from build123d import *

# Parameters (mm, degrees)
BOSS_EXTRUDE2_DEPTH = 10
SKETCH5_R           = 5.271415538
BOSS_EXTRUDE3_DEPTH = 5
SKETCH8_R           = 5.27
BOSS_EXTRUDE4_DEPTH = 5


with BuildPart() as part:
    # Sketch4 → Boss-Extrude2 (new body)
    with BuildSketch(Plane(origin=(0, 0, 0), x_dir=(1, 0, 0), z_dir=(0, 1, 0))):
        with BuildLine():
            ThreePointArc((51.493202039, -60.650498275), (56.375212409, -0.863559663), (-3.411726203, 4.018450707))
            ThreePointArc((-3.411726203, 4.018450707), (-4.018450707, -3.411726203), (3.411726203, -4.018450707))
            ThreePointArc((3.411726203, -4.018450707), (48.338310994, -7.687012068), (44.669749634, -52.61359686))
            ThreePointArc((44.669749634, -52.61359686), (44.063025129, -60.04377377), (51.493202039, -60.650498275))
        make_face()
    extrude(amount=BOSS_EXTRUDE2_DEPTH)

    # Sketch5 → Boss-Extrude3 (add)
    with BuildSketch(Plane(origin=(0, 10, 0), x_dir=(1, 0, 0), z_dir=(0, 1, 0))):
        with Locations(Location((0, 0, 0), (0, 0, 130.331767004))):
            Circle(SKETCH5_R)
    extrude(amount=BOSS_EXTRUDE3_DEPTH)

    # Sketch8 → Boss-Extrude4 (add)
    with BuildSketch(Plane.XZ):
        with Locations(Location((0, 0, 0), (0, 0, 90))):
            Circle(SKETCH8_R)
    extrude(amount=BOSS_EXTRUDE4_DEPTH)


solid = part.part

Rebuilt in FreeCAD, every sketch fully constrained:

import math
import FreeCAD as App
import Part
import Sketcher

doc = App.newDocument("Part")
body = doc.addObject("PartDesign::Body", "Body")

sketch1 = body.newObject("Sketcher::SketchObject", "Sketch")
sketch1.AttachmentSupport = (doc.getObject("XZ_Plane"), [""])
sketch1.MapMode = "FlatFace"
sketch1.addGeometry(Part.ArcOfCircle(Part.Circle(App.Vector(24.040738, 28.316024, 0), App.Vector(0, 0, 1), 42.416459), math.radians(-130.331767), math.radians(49.668233)), False)
sketch1.addGeometry(Part.ArcOfCircle(Part.Circle(App.Vector(0, 0, 0), App.Vector(0, 0, 1), 5.271416), math.radians(49.668233), math.radians(229.668233)), False)
sketch1.addGeometry(Part.ArcOfCircle(Part.Circle(App.Vector(24.040738, 28.316024, 0), App.Vector(0, 0, 1), 31.873628), math.radians(-130.331767), math.radians(49.668233)), False)
sketch1.addGeometry(Part.ArcOfCircle(Part.Circle(App.Vector(48.081476, 56.632048, 0), App.Vector(0, 0, 1), 5.271416), math.radians(49.668233), math.radians(229.668233)), False)
sketch1.addConstraint(Sketcher.Constraint("Tangent", 0, 1, 1, 2))
sketch1.addConstraint(Sketcher.Constraint("Tangent", 1, 1, 2, 1))
sketch1.addConstraint(Sketcher.Constraint("Tangent", 2, 2, 3, 2))
sketch1.addConstraint(Sketcher.Constraint("Tangent", 3, 1, 0, 2))
sketch1.addConstraint(Sketcher.Constraint("Coincident", 1, 3, -1, 1))
sketch1.addConstraint(Sketcher.Constraint("Coincident", 2, 3, 0, 3))
sketch1.addConstraint(Sketcher.Constraint("Radius", 0, 42.416459))
sketch1.addConstraint(Sketcher.Constraint("Radius", 2, 31.873628))
sketch1.addConstraint(Sketcher.Constraint("DistanceY", -1, 1, 3, 1, 60.650498))
sketch1.addConstraint(Sketcher.Constraint("DistanceY", 0, 1, 3, 3, 60.650498))
pad1 = body.newObject("PartDesign::Pad", "Pad")
pad1.Profile = sketch1
pad1.Length = 10
pad1.Reversed = True

sketch2 = body.newObject("Sketcher::SketchObject", "Sketch001")
sketch2.AttachmentSupport = (doc.getObject("XZ_Plane"), [""])
sketch2.MapMode = "FlatFace"
sketch2.AttachmentOffset = App.Placement(App.Vector(0, 0, -10), App.Rotation())
sketch2.addGeometry(Part.Circle(App.Vector(0, 0, 0), App.Vector(0, 0, 1), 5.271416), False)
sketch2.addConstraint(Sketcher.Constraint("Coincident", 0, 3, -1, 1))
sketch2.addConstraint(Sketcher.Constraint("Diameter", 0, 10.542831))
pad2 = body.newObject("PartDesign::Pad", "Pad001")
pad2.Profile = sketch2
pad2.Length = 5
pad2.Reversed = True

sketch3 = body.newObject("Sketcher::SketchObject", "Sketch002")
sketch3.AttachmentSupport = (doc.getObject("XZ_Plane"), [""])
sketch3.MapMode = "FlatFace"
sketch3.addGeometry(Part.Circle(App.Vector(0, 0, 0), App.Vector(0, 0, 1), 5.27), False)
sketch3.addConstraint(Sketcher.Constraint("Coincident", 0, 3, -1, 1))
sketch3.addConstraint(Sketcher.Constraint("Diameter", 0, 10.54))
pad3 = body.newObject("PartDesign::Pad", "Pad002")
pad3.Profile = sketch3
pad3.Length = 5

doc.recompute()
